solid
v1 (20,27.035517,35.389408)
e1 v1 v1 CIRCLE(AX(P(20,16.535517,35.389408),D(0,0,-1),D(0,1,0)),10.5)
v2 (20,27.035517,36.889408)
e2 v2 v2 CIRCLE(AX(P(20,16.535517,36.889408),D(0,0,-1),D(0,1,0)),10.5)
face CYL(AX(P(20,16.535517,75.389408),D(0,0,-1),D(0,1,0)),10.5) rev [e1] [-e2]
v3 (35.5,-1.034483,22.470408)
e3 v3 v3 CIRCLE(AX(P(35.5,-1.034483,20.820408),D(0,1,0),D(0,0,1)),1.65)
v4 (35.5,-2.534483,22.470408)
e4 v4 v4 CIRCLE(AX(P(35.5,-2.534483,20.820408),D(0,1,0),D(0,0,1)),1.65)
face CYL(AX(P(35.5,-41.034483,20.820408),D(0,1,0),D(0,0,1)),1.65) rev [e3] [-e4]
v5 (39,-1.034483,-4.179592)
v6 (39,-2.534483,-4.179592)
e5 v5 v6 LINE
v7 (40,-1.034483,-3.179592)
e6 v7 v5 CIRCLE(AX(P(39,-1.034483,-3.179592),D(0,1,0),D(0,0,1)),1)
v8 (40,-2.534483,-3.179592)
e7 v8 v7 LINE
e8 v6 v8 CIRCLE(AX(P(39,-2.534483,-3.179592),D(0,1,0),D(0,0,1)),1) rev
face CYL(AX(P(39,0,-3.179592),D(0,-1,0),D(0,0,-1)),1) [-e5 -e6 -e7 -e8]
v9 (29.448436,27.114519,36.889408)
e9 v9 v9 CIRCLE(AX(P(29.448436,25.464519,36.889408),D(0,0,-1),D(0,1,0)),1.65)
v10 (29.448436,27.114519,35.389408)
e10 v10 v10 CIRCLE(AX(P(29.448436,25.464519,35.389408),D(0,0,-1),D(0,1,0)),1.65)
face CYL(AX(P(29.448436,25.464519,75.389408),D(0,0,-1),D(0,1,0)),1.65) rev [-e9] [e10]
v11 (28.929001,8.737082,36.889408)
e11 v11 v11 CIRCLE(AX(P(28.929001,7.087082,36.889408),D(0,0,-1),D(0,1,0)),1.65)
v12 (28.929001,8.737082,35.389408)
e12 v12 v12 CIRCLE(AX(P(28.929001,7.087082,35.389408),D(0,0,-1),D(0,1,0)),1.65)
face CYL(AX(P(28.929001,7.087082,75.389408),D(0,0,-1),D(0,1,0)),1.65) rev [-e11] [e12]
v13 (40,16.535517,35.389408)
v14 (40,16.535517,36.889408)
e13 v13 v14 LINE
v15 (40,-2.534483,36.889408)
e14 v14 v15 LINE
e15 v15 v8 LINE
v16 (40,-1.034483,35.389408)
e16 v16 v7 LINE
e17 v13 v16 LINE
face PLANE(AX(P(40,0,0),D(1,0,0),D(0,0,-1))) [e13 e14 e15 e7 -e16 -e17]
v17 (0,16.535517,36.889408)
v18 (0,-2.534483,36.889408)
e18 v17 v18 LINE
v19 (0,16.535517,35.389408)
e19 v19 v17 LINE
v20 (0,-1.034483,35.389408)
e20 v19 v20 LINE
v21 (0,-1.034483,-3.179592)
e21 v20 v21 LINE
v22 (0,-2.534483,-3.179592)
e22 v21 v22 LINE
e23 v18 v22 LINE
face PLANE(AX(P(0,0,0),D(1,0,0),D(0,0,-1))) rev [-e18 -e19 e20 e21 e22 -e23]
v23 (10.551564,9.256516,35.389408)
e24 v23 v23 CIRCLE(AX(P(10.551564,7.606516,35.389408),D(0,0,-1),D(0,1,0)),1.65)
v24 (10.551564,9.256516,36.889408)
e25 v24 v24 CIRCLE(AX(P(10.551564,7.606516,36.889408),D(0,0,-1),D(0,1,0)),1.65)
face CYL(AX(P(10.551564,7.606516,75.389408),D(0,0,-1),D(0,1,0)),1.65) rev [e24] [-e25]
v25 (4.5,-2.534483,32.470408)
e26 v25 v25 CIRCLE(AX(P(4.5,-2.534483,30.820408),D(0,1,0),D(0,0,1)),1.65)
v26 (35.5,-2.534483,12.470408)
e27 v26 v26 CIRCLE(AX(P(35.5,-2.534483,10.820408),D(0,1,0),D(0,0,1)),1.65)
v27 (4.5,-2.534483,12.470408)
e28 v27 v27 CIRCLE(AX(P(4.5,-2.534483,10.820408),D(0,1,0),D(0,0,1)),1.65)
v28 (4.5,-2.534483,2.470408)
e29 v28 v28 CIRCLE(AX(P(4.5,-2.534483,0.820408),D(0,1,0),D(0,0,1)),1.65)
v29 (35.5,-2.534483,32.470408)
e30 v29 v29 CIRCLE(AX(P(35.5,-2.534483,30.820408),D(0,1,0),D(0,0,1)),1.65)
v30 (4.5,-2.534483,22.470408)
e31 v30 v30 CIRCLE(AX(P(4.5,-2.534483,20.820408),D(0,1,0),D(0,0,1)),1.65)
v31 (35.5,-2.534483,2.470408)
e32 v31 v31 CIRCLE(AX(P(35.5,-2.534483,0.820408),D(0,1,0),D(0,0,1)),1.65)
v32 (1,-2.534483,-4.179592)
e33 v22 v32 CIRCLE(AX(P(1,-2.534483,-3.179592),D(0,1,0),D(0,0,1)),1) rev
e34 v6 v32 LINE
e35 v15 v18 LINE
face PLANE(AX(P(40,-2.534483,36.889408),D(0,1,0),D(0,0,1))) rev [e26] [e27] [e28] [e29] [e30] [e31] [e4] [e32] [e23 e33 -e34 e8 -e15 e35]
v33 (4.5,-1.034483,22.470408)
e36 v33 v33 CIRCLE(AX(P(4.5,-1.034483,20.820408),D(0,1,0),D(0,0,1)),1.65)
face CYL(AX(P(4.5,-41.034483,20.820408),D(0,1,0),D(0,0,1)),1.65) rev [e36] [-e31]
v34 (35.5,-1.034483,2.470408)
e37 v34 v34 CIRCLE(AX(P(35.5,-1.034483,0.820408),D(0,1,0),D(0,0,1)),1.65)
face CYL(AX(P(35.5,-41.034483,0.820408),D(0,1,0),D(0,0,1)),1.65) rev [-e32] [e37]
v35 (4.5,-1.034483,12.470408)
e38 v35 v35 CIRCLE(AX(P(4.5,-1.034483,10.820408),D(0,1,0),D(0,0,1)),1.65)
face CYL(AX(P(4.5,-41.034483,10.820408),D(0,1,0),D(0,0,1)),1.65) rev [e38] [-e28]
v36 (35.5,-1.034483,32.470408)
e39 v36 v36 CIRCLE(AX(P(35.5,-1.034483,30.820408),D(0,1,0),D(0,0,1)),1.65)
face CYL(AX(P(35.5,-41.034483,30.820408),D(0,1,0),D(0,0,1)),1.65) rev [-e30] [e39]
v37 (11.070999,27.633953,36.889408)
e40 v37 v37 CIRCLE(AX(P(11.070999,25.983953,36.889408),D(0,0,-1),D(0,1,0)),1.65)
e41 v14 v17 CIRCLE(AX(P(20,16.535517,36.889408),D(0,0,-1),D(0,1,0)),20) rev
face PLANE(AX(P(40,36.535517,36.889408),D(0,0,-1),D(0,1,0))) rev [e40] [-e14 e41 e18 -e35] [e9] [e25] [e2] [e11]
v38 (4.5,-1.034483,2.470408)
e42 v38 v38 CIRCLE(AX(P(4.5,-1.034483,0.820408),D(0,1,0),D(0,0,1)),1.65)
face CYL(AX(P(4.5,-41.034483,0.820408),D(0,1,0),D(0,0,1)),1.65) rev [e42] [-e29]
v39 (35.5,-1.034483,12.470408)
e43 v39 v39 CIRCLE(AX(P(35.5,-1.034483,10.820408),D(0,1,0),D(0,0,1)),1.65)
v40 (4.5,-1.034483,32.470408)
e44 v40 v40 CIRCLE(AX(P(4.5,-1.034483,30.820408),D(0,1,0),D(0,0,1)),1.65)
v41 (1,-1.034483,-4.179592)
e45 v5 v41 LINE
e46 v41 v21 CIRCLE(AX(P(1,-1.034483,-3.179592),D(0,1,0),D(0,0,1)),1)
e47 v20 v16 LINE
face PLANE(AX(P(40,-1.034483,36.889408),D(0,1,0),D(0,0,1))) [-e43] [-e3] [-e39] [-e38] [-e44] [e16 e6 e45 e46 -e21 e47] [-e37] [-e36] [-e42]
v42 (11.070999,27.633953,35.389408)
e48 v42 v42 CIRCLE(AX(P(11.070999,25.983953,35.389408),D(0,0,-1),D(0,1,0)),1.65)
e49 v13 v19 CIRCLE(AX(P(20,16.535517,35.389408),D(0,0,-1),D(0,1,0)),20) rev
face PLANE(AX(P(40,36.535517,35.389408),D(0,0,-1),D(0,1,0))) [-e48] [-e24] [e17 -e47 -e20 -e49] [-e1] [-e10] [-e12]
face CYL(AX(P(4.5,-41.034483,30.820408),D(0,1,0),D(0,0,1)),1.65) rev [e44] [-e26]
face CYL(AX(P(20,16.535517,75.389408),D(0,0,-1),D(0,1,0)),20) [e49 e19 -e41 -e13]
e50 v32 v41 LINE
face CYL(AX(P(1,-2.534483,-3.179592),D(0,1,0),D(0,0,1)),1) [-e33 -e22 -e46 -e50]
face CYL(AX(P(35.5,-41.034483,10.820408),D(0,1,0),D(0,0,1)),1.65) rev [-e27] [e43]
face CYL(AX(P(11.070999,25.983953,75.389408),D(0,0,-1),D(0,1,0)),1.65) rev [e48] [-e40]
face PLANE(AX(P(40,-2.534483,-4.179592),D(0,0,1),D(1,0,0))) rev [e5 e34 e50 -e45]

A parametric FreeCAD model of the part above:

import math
import FreeCAD as App
import Part
import Sketcher

V = App.Vector
Q = App.Units.Quantity


def edges_at(feature, points):
    """Names of the edges that pass closest to the given points."""
    edges = feature.Shape.Edges
    near = lambda p: min(range(len(edges)), key=lambda i: edges[i].distToShape(Part.Vertex(*p))[0])
    return sorted({f"Edge{near(p) + 1}" for p in points})

doc = App.newDocument("Part")
body = doc.addObject("PartDesign::Body", "Body")

sketch1 = doc.addObject("Sketcher::SketchObject", "Sketch")
body.addObject(sketch1)
sketch1.AttachmentSupport = (doc.YZ_Plane, [""])
sketch1.MapMode = "FlatFace"
sketch1.addGeometry(Part.LineSegment(V(36.5, 36.9, 0), V(-2.5, 36.9, 0)), False)
sketch1.addGeometry(Part.LineSegment(V(-2.5, 36.9, 0), V(-2.5, -4.2, 0)), False)
sketch1.addGeometry(Part.LineSegment(V(-2.5, -4.2, 0), V(-1, -4.2, 0)), False)
sketch1.addGeometry(Part.LineSegment(V(-1, -4.2, 0), V(-1, 35.4, 0)), False)
sketch1.addGeometry(Part.LineSegment(V(-1, 35.4, 0), V(36.5, 35.4, 0)), False)
sketch1.addGeometry(Part.LineSegment(V(36.5, 35.4, 0), V(36.5, 36.9, 0)), False)
sketch1.addConstraint(Sketcher.Constraint("Coincident", 0, 2, 1, 1))
sketch1.addConstraint(Sketcher.Constraint("Coincident", 1, 2, 2, 1))
sketch1.addConstraint(Sketcher.Constraint("Coincident", 2, 2, 3, 1))
sketch1.addConstraint(Sketcher.Constraint("Coincident", 3, 2, 4, 1))
sketch1.addConstraint(Sketcher.Constraint("Coincident", 4, 2, 5, 1))
sketch1.addConstraint(Sketcher.Constraint("Coincident", 5, 2, 0, 1))
sketch1.addConstraint(Sketcher.Constraint("Horizontal", 0))
sketch1.addConstraint(Sketcher.Constraint("Vertical", 1))
sketch1.addConstraint(Sketcher.Constraint("Horizontal", 2))
sketch1.addConstraint(Sketcher.Constraint("Vertical", 3))
sketch1.addConstraint(Sketcher.Constraint("Horizontal", 4))
sketch1.addConstraint(Sketcher.Constraint("Vertical", 5))
sketch1.addConstraint(Sketcher.Constraint("Equal", 2, 5))
sketch1.addConstraint(Sketcher.Constraint("DistanceX", 2, 1, 2, 2, Q("1.5 mm")))
sketch1.addConstraint(Sketcher.Constraint("DistanceX", 0, 2, 0, 1, Q("39.07 mm")))
sketch1.addConstraint(Sketcher.Constraint("DistanceY", 1, 2, 1, 1, Q("41.069 mm")))
sketch1.addConstraint(Sketcher.Constraint("DistanceY", -1, 1, 0, 2, Q("36.889408 mm")))
sketch1.addConstraint(Sketcher.Constraint("DistanceX", 0, 2, -1, 1, Q("2.534483 mm")))
pad1 = doc.addObject("PartDesign::Pad", "Pad")
body.addObject(pad1)
pad1.Profile = sketch1
pad1.Length = 40

sketch2 = doc.addObject("Sketcher::SketchObject", "Sketch001")
body.addObject(sketch2)
sketch2.AttachmentSupport = (doc.XZ_Plane, [""])
sketch2.MapMode = "FlatFace"
sketch2.AttachmentOffset = App.Placement(V(0, 0, 1.034483), App.Rotation())
sketch2.addGeometry(Part.Circle(V(4.5, 30.8, 0), V(0, 0, 1), 1.6), False)
sketch2.addGeometry(Part.Circle(V(4.5, 20.8, 0), V(0, 0, 1), 1.6), False)
sketch2.addGeometry(Part.Circle(V(4.5, 10.8, 0), V(0, 0, 1), 1.6), False)
sketch2.addGeometry(Part.Circle(V(4.5, 0.8, 0), V(0, 0, 1), 1.6), False)
sketch2.addGeometry(Part.Circle(V(35.5, 30.8, 0), V(0, 0, 1), 1.6), False)
sketch2.addGeometry(Part.Circle(V(35.5, 20.8, 0), V(0, 0, 1), 1.6), False)
sketch2.addGeometry(Part.Circle(V(35.5, 10.8, 0), V(0, 0, 1), 1.6), False)
sketch2.addGeometry(Part.Circle(V(35.5, 0.8, 0), V(0, 0, 1), 1.6), False)
sketch2.addConstraint(Sketcher.Constraint("Equal", 0, 1))
sketch2.addConstraint(Sketcher.Constraint("Equal", 1, 2))
sketch2.addConstraint(Sketcher.Constraint("Equal", 2, 3))
sketch2.addConstraint(Sketcher.Constraint("Equal", 3, 4))
sketch2.addConstraint(Sketcher.Constraint("Equal", 4, 5))
sketch2.addConstraint(Sketcher.Constraint("Equal", 5, 6))
sketch2.addConstraint(Sketcher.Constraint("Equal", 6, 7))
sketch2.addConstraint(Sketcher.Constraint("Horizontal", 0, 3, 4, 3))
sketch2.addConstraint(Sketcher.Constraint("Horizontal", 1, 3, 5, 3))
sketch2.addConstraint(Sketcher.Constraint("Horizontal", 2, 3, 6, 3))
sketch2.addConstraint(Sketcher.Constraint("Horizontal", 3, 3, 7, 3))
sketch2.addConstraint(Sketcher.Constraint("Vertical", 0, 3, 1, 3))
sketch2.addConstraint(Sketcher.Constraint("Vertical", 1, 3, 2, 3))
sketch2.addConstraint(Sketcher.Constraint("Vertical", 2, 3, 3, 3))
sketch2.addConstraint(Sketcher.Constraint("Vertical", 4, 3, 5, 3))
sketch2.addConstraint(Sketcher.Constraint("Vertical", 5, 3, 6, 3))
sketch2.addConstraint(Sketcher.Constraint("Vertical", 6, 3, 7, 3))
sketch2.addConstraint(Sketcher.Constraint("Diameter", 0, Q("3.3 mm")))
sketch2.addConstraint(Sketcher.Constraint("DistanceY", 1, 3, 0, 3, Q("10 mm")))
sketch2.addConstraint(Sketcher.Constraint("DistanceY", 2, 3, 1, 3, Q("10 mm")))
sketch2.addConstraint(Sketcher.Constraint("DistanceY", 3, 3, 2, 3, Q("10 mm")))
sketch2.addConstraint(Sketcher.Constraint("DistanceX", 0, 3, 4, 3, Q("31 mm")))
sketch2.addConstraint(Sketcher.Constraint("DistanceX", -1, 1, 0, 3, Q("4.5 mm")))
sketch2.addConstraint(Sketcher.Constraint("DistanceY", -1, 1, 0, 3, Q("30.820408 mm")))
pocket1 = doc.addObject("PartDesign::Pocket", "Pocket")
body.addObject(pocket1)
pocket1.Profile = sketch2
pocket1.Length = 40
pocket1.Reversed = True

sketch3 = doc.addObject("Sketcher::SketchObject", "Sketch002")
body.addObject(sketch3)
sketch3.AttachmentSupport = (doc.XY_Plane, [""])
sketch3.MapMode = "FlatFace"
sketch3.AttachmentOffset = App.Placement(V(0, 0, 35.389408), App.Rotation())
sketch3.addGeometry(Part.Circle(V(20, 16.5, 0), V(0, 0, 1), 10.5), False)
sketch3.addGeometry(Part.Circle(V(11.1, 26, 0), V(0, 0, 1), 1.6), False)
sketch3.addGeometry(Part.Circle(V(10.6, 7.6, 0), V(0, 0, 1), 1.6), False)
sketch3.addGeometry(Part.Circle(V(29.4, 25.5, 0), V(0, 0, 1), 1.6), False)
sketch3.addGeometry(Part.Circle(V(28.9, 7.1, 0), V(0, 0, 1), 1.6), False)
sketch3.addGeometry(Part.LineSegment(V(40, 36.5, 0), V(40, 16.5, 0)), False)
sketch3.addGeometry(Part.ArcOfCircle(Part.Circle(V(20, 16.5, 0), V(0, 0, 1), 20), math.radians(0), math.radians(90)), False)
sketch3.addGeometry(Part.LineSegment(V(20, 36.5, 0), V(40, 36.5, 0)), False)
sketch3.addGeometry(Part.LineSegment(V(0, 36.5, 0), V(20, 36.5, 0)), False)
sketch3.addGeometry(Part.ArcOfCircle(Part.Circle(V(20, 16.5, 0), V(0, 0, 1), 20), math.radians(90), math.radians(180)), False)
sketch3.addGeometry(Part.LineSegment(V(0, 16.5, 0), V(0, 36.5, 0)), False)
sketch3.addConstraint(Sketcher.Constraint("Tangent", 5, 2, 6, 1))
sketch3.addConstraint(Sketcher.Constraint("Tangent", 6, 2, 7, 1))
sketch3.addConstraint(Sketcher.Constraint("Coincident", 7, 2, 5, 1))
sketch3.addConstraint(Sketcher.Constraint("Tangent", 8, 2, 9, 1))
sketch3.addConstraint(Sketcher.Constraint("Tangent", 9, 2, 10, 1))
sketch3.addConstraint(Sketcher.Constraint("Coincident", 10, 2, 8, 1))
sketch3.addConstraint(Sketcher.Constraint("Vertical", 5))
sketch3.addConstraint(Sketcher.Constraint("Horizontal", 7))
sketch3.addConstraint(Sketcher.Constraint("Horizontal", 8))
sketch3.addConstraint(Sketcher.Constraint("Vertical", 10))
sketch3.addConstraint(Sketcher.Constraint("Coincident", 6, 3, 0, 3))
sketch3.addConstraint(Sketcher.Constraint("Coincident", 9, 3, 0, 3))
sketch3.addConstraint(Sketcher.Constraint("Equal", 1, 2))
sketch3.addConstraint(Sketcher.Constraint("Equal", 2, 3))
sketch3.addConstraint(Sketcher.Constraint("Equal", 3, 4))
sketch3.addConstraint(Sketcher.Constraint("Equal", 6, 9))
sketch3.addConstraint(Sketcher.Constraint("PointOnObject", 9, 2, -2))
sketch3.addConstraint(Sketcher.Constraint("Diameter", 0, Q("21 mm")))
sketch3.addConstraint(Sketcher.Constraint("Radius", 6, Q("20 mm")))
sketch3.addConstraint(Sketcher.Constraint("Diameter", 1, Q("3.3 mm")))
sketch3.addConstraint(Sketcher.Constraint("DistanceX", -1, 1, 1, 3, Q("11.070999 mm")))
sketch3.addConstraint(Sketcher.Constraint("DistanceX", -1, 1, 4, 3, Q("28.929001 mm")))
sketch3.addConstraint(Sketcher.Constraint("DistanceY", 2, 3, 0, 3, Q("8.929001 mm")))
sketch3.addConstraint(Sketcher.Constraint("DistanceY", 0, 3, 3, 3, Q("8.929001 mm")))
sketch3.addConstraint(Sketcher.Constraint("DistanceY", -1, 1, 3, 3, Q("25.464519 mm")))
sketch3.addConstraint(Sketcher.Constraint("DistanceY", -1, 1, 4, 3, Q("7.087082 mm")))
sketch3.addConstraint(Sketcher.Constraint("DistanceX", 2, 3, 3, 3, Q("18.896871 mm")))
sketch3.addConstraint(Sketcher.Constraint("DistanceY", 4, 3, 1, 3, Q("18.896871 mm")))
sketch3.addConstraint(Sketcher.Constraint("DistanceX", -1, 1, 2, 3, Q("10.551564 mm")))
pocket2 = doc.addObject("PartDesign::Pocket", "Pocket001")
body.addObject(pocket2)
pocket2.Profile = sketch3
pocket2.Length = 40
pocket2.Reversed = True
doc.recompute()

fillet = doc.addObject("PartDesign::Fillet", "Fillet")
body.addObject(fillet)
fillet.Base = (pocket2, edges_at(pocket2, [(40, -1.784, -4.18), (0, -1.784, -4.18)]))
fillet.Radius = 1

doc.recompute()
